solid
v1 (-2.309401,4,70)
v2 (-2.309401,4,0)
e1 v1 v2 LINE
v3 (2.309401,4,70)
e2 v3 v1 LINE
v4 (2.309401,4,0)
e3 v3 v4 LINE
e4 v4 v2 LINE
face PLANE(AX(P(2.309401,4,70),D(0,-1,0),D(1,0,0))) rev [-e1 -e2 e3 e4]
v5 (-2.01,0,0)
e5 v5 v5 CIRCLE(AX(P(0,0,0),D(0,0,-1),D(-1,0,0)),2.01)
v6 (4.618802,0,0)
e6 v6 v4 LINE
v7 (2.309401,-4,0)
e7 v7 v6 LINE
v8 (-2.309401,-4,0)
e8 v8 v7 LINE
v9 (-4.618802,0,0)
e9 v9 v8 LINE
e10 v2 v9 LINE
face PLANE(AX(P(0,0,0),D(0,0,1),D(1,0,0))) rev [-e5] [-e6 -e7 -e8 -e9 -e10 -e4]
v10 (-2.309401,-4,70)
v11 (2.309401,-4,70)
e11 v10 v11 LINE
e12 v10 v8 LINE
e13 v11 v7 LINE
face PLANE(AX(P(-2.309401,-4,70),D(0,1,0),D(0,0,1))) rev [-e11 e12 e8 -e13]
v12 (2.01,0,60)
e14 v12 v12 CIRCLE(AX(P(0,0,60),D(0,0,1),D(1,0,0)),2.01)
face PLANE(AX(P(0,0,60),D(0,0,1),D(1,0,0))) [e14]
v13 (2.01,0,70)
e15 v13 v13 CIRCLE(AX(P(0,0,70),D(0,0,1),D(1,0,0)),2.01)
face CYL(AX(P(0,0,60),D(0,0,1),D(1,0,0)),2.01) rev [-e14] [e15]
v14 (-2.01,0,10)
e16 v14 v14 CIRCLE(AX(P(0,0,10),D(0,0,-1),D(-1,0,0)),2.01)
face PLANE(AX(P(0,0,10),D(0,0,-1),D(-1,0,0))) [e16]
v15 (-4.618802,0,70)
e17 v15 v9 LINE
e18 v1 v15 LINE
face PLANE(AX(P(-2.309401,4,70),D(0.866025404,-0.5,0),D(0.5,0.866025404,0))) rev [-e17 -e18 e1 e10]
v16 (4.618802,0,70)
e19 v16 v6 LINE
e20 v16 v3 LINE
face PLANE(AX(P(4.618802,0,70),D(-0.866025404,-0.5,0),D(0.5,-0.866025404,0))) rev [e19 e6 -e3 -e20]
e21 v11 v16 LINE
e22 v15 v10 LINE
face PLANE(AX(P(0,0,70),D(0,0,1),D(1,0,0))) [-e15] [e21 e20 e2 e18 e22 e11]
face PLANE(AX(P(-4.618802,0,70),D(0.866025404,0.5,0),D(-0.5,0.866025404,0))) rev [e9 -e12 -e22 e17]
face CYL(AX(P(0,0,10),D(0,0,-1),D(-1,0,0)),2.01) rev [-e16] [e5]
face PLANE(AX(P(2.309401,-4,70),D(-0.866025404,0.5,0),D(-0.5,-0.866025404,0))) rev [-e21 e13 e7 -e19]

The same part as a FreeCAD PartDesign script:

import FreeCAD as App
import Part
import Sketcher
from FreeCAD import Vector
Q = App.Units.Quantity

doc = App.newDocument("Part")
body = doc.addObject("PartDesign::Body", "Body")

sketch1 = body.newObject("Sketcher::SketchObject", "Sketch")
sketch1.AttachmentSupport = (doc.getObject("XY_Plane"), [""])
sketch1.MapMode = "FlatFace"
sketch1.addGeometry([
    Part.LineSegment(Vector(4.6, 0, 0), Vector(2.3, 4, 0)),
    Part.LineSegment(Vector(2.3, 4, 0), Vector(-2.3, 4, 0)),
    Part.LineSegment(Vector(-2.3, 4, 0), Vector(-4.6, 0, 0)),
    Part.LineSegment(Vector(-4.6, 0, 0), Vector(-2.3, -4, 0)),
    Part.LineSegment(Vector(-2.3, -4, 0), Vector(2.3, -4, 0)),
    Part.LineSegment(Vector(2.3, -4, 0), Vector(4.6, 0, 0)),
], False)
sketch1.addConstraint([
    Sketcher.Constraint("Coincident", 0, 2, 1, 1),
    Sketcher.Constraint("Coincident", 1, 2, 2, 1),
    Sketcher.Constraint("Coincident", 2, 2, 3, 1),
    Sketcher.Constraint("Coincident", 3, 2, 4, 1),
    Sketcher.Constraint("Coincident", 4, 2, 5, 1),
    Sketcher.Constraint("Coincident", 5, 2, 0, 1),
    Sketcher.Constraint("Horizontal", 1),
    Sketcher.Constraint("Horizontal", 4),
    Sketcher.Constraint("Symmetric", 0, 2, 3, 2, -1, 1),
    Sketcher.Constraint("Symmetric", 2, 2, 5, 2, -1, 1),
    Sketcher.Constraint("PointOnObject", 2, 2, -1),
    Sketcher.Constraint("Parallel", 2, 5),
    Sketcher.Constraint("Vertical", 1, 2, 3, 2),
    Sketcher.Constraint("Angle", 0, Q("120 deg")),
    Sketcher.Constraint("DistanceY", -1, 1, 0, 2, Q("4 mm")),
    Sketcher.Constraint("DistanceX", -1, 1, 0, 2, Q("2.309401 mm")),
])
pad1 = body.newObject("PartDesign::Pad", "Pad")
pad1.Profile = sketch1
pad1.Length = 70

sketch2 = body.newObject("Sketcher::SketchObject", "Sketch001")
sketch2.AttachmentSupport = (doc.getObject("XY_Plane"), [""])
sketch2.MapMode = "FlatFace"
sketch2.addGeometry(Part.Circle(Vector(0, 0, 0), Vector(0, 0, 1), 2), False)
sketch2.addConstraint([
    Sketcher.Constraint("Coincident", 0, 3, -1, 1),
    Sketcher.Constraint("Diameter", 0, Q("4.02 mm")),
])
pocket1 = body.newObject("PartDesign::Pocket", "Pocket")
pocket1.Profile = sketch2
pocket1.Length = 10
pocket1.Reversed = True

sketch3 = body.newObject("Sketcher::SketchObject", "Sketch002")
sketch3.AttachmentSupport = (doc.getObject("XY_Plane"), [""])
sketch3.MapMode = "FlatFace"
sketch3.AttachmentOffset = App.Placement(Vector(0, 0, 60), App.Rotation())
sketch3.addGeometry(Part.Circle(Vector(0, 0, 0), Vector(0, 0, 1), 2), False)
sketch3.addConstraint([
    Sketcher.Constraint("Coincident", 0, 3, -1, 1),
    Sketcher.Constraint("Diameter", 0, Q("4.02 mm")),
])
pocket2 = body.newObject("PartDesign::Pocket", "Pocket001")
pocket2.Profile = sketch3
pocket2.Length = 10
pocket2.Reversed = True

doc.recompute()
